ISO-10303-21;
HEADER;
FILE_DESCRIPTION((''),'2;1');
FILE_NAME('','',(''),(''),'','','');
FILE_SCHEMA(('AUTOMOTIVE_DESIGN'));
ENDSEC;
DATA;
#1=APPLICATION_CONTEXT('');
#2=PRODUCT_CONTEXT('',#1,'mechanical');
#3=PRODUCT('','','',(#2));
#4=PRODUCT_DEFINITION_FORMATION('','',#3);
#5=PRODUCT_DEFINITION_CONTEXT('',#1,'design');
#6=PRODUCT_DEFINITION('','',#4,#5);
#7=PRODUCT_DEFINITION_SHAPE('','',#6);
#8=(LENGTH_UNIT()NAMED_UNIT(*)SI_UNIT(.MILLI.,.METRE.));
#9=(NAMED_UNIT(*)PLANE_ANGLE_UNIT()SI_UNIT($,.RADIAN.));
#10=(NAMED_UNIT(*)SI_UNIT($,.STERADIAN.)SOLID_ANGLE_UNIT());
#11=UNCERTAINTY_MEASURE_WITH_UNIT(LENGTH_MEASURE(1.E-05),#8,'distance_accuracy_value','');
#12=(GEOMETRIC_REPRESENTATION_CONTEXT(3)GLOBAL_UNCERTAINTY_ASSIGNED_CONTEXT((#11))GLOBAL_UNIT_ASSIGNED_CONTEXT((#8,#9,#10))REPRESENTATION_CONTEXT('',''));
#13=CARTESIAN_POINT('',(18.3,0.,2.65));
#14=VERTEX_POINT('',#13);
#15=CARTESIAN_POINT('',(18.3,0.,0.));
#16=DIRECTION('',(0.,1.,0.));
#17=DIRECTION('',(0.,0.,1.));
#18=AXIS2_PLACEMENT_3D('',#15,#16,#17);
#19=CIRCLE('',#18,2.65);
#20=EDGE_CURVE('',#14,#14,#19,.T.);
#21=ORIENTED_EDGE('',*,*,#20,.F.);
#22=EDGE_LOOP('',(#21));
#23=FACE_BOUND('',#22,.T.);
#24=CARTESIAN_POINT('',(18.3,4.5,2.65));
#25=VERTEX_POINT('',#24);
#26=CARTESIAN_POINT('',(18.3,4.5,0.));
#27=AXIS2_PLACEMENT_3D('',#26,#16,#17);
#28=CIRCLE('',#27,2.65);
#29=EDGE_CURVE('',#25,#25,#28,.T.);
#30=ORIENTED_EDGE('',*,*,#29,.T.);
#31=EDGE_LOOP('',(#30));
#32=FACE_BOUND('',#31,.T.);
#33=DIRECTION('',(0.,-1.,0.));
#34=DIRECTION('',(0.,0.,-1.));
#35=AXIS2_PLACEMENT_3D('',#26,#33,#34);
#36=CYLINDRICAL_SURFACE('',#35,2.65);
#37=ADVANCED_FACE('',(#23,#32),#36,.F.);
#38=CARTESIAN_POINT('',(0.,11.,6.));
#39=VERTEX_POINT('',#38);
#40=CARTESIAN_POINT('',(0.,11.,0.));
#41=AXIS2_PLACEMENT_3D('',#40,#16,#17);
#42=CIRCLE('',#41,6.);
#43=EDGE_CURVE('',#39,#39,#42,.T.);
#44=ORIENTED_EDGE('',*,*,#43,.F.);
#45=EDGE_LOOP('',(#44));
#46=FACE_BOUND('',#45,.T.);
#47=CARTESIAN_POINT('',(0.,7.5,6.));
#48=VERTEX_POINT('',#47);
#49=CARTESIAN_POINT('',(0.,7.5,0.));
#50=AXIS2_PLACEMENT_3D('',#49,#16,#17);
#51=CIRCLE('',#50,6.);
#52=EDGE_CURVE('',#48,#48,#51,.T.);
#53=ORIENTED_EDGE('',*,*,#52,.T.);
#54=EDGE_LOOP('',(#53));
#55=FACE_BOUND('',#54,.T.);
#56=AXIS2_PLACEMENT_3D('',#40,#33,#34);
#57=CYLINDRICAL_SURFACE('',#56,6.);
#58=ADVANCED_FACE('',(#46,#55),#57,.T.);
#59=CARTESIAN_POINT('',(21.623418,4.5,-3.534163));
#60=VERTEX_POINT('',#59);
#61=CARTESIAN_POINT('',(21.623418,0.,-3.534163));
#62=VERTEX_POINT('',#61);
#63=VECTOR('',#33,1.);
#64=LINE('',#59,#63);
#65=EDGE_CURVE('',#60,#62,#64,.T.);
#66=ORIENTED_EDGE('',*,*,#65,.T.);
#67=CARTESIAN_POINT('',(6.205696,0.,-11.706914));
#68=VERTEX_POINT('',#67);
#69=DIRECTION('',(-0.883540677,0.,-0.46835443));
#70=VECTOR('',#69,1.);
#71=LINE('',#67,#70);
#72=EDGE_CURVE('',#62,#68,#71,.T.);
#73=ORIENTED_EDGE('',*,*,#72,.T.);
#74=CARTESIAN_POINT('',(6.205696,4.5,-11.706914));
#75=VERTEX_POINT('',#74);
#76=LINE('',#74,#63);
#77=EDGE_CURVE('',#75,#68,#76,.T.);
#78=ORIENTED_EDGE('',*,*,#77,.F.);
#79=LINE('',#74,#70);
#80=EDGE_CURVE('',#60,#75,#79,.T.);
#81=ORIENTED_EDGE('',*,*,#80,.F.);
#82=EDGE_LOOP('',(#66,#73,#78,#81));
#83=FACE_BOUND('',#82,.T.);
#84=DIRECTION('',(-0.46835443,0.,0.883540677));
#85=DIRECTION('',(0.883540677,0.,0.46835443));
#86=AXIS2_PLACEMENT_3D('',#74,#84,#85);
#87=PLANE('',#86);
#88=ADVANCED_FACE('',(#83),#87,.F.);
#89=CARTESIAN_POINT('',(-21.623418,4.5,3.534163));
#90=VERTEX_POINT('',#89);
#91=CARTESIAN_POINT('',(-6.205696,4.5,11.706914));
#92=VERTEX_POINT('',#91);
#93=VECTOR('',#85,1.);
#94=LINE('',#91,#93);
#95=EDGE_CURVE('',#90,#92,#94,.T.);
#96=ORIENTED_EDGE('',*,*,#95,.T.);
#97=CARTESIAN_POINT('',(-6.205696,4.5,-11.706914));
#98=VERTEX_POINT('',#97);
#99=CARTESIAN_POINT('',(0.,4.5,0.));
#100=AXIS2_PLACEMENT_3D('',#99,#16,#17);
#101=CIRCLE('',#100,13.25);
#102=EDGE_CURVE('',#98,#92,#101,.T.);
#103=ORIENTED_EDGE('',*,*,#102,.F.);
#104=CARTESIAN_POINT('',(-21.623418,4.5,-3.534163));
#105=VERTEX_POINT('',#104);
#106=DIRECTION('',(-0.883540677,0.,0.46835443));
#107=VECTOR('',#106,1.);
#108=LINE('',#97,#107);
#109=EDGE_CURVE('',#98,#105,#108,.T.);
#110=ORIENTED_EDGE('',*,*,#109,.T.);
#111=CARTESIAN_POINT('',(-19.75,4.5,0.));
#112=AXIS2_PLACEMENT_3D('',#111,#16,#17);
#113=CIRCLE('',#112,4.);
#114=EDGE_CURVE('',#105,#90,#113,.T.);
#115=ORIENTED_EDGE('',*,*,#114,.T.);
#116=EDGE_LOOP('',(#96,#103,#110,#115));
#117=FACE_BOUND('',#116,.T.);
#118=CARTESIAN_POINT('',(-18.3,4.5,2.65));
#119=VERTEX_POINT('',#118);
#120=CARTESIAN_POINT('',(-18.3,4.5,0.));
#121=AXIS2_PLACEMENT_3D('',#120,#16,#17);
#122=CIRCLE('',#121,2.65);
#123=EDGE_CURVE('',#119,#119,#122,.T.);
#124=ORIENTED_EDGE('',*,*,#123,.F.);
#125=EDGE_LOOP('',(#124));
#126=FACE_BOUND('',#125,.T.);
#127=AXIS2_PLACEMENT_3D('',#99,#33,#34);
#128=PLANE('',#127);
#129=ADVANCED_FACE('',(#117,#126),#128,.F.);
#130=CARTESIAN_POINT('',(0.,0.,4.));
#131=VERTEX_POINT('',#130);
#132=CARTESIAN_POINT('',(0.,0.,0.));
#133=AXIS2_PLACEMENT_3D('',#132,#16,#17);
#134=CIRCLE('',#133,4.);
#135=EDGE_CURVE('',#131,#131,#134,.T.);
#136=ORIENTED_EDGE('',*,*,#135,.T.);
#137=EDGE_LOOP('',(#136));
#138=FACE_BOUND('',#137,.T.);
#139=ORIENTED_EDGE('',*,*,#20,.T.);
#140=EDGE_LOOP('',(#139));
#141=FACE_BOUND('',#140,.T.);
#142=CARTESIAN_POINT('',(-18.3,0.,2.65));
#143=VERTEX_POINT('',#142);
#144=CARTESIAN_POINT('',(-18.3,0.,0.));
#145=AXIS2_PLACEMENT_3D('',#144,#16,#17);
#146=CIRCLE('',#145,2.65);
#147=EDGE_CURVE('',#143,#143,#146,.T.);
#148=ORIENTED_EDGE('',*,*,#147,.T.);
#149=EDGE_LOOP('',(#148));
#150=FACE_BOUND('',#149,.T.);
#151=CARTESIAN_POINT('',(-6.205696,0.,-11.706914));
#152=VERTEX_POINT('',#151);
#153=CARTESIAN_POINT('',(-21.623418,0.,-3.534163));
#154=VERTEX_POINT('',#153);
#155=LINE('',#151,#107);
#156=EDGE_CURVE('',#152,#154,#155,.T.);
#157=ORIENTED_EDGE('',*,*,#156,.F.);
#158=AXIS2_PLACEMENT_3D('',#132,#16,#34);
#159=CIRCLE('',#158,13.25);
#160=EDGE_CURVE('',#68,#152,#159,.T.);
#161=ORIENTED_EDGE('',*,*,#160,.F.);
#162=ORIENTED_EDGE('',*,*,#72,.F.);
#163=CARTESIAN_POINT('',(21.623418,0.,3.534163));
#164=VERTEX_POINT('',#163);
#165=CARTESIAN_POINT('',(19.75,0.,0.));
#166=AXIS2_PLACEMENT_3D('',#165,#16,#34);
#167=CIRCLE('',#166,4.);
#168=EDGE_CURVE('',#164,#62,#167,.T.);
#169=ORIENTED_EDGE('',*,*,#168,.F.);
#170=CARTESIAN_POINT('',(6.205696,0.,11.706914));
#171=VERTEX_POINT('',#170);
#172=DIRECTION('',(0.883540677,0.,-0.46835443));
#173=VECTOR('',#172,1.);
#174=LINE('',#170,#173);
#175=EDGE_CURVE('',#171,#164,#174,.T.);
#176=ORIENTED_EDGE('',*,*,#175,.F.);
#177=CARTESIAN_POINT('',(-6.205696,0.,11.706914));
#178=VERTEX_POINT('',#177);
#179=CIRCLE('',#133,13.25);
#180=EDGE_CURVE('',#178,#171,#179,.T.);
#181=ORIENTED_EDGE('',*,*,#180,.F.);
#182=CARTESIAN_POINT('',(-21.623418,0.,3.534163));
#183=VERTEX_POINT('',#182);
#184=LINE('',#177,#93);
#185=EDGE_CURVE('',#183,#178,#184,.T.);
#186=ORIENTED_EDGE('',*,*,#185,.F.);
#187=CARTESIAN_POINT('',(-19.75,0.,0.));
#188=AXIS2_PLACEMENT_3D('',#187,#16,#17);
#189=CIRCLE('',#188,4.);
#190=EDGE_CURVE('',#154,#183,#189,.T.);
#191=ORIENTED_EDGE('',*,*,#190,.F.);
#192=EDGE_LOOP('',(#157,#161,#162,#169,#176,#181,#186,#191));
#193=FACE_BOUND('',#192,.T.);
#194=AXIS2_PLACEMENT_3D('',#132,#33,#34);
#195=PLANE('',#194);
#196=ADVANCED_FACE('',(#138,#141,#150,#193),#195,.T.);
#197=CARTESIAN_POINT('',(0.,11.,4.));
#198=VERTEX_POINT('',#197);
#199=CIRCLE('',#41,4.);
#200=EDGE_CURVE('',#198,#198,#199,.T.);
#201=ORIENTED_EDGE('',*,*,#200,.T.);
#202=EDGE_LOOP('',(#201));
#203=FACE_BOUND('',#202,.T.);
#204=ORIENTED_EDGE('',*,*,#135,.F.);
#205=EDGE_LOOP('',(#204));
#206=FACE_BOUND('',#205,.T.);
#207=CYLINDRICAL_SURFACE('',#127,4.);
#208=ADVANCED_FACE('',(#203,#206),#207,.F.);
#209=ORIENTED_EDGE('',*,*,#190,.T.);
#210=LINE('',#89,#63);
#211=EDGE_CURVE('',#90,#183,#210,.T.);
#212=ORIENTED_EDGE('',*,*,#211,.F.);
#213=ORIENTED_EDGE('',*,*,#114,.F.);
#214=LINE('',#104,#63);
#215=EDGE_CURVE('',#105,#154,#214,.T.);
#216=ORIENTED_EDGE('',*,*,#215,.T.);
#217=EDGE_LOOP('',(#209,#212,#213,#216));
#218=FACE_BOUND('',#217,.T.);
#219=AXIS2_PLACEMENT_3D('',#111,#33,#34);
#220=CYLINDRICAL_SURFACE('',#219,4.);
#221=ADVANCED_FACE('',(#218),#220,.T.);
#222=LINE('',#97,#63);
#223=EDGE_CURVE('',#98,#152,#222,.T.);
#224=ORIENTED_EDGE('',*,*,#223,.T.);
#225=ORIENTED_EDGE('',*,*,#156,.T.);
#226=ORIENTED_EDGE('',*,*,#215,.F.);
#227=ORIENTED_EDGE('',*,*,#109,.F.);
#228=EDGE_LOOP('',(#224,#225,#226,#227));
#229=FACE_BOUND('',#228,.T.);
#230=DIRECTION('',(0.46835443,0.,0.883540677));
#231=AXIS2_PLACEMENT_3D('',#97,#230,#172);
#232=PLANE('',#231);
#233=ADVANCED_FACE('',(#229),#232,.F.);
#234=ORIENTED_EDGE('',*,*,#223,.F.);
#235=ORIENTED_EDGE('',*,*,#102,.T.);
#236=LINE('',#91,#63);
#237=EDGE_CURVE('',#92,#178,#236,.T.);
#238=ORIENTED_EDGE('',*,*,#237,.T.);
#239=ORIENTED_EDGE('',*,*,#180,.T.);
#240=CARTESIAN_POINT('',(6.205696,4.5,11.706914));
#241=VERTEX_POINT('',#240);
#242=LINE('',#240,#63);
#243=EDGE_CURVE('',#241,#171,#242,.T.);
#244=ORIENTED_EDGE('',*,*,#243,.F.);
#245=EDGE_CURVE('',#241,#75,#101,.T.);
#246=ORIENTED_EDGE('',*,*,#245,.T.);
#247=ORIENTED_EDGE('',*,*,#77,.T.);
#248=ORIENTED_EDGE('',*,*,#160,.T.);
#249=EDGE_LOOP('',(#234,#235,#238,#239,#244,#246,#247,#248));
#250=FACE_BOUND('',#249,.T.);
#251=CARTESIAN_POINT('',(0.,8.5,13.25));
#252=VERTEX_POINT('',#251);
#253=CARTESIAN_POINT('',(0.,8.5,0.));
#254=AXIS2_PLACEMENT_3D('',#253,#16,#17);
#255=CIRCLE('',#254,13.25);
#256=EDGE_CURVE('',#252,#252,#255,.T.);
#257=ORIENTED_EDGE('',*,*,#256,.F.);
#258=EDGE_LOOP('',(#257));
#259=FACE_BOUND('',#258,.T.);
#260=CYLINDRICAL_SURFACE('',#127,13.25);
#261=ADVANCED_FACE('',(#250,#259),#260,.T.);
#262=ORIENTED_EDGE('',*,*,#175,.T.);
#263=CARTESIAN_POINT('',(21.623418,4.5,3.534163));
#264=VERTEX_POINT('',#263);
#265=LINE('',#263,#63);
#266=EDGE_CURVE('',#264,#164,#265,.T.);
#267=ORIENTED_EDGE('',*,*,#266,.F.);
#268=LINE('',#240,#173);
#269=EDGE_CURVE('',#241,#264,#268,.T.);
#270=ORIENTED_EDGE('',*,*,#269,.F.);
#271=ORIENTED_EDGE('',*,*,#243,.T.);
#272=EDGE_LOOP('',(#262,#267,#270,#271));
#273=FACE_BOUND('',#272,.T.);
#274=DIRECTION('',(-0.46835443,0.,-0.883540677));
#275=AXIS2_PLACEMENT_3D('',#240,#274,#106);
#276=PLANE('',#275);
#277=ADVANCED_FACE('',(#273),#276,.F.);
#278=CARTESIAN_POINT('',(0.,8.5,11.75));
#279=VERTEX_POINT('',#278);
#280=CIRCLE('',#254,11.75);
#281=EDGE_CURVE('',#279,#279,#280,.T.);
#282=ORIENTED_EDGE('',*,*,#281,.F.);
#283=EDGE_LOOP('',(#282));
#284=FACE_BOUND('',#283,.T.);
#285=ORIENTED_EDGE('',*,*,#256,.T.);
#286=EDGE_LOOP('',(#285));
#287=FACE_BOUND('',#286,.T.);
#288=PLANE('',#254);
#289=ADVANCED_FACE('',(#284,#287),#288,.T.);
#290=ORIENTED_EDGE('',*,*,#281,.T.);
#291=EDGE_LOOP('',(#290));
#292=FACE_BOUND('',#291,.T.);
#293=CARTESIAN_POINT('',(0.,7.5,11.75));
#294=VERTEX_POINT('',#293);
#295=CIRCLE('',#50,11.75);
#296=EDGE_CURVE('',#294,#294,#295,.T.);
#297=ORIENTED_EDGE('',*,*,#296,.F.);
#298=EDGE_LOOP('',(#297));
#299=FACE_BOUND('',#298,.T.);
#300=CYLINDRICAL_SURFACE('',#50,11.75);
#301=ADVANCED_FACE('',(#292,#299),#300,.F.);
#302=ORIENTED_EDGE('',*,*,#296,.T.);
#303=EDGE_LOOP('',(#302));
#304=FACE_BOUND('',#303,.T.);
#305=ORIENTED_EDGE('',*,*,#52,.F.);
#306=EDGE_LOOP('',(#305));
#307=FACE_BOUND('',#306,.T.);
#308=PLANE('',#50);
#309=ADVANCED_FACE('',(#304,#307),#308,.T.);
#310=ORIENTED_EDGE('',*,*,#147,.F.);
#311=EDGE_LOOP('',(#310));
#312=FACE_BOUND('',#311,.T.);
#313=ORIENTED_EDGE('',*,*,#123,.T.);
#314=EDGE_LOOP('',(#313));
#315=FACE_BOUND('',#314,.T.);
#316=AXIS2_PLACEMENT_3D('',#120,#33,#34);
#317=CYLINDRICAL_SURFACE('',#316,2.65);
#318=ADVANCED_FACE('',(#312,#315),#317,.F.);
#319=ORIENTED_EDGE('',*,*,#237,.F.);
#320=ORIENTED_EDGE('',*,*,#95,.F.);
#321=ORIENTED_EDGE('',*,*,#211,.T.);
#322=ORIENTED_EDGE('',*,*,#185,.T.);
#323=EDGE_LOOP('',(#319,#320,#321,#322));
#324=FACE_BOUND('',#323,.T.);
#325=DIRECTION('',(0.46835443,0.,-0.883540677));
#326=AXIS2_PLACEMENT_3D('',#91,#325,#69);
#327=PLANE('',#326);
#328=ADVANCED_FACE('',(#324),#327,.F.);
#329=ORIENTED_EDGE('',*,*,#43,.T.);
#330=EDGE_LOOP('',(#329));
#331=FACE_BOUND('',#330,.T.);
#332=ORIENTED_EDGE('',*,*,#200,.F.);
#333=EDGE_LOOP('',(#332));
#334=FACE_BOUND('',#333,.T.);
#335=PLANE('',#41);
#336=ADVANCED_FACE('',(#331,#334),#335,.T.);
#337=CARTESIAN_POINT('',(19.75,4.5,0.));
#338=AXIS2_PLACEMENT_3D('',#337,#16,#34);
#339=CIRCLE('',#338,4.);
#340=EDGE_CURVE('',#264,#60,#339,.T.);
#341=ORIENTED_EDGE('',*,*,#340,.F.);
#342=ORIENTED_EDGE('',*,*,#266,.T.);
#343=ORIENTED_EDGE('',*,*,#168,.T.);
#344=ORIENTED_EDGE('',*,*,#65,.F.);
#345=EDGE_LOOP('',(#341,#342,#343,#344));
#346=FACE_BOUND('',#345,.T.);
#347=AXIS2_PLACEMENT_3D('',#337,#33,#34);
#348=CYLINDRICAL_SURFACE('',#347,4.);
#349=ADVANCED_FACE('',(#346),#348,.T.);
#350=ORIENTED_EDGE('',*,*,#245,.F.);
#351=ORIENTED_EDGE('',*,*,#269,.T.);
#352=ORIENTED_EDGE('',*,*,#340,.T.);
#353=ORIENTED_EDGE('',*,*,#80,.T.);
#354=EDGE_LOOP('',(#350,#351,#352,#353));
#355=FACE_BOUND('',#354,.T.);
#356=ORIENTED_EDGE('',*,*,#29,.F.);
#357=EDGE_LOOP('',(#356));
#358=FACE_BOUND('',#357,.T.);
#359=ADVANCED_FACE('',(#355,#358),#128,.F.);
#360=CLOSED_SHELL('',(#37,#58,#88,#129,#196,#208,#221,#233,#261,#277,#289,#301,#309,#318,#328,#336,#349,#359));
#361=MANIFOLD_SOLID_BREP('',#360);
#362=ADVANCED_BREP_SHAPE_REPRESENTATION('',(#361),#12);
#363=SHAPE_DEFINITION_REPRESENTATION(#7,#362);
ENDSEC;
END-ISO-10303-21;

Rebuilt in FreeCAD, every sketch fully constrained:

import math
import FreeCAD as App
import Part
import Sketcher

V = App.Vector

doc = App.newDocument("Part")
body = doc.addObject("PartDesign::Body", "Body")

# Sketch on XZ plane
sketch1 = body.newObject("Sketcher::SketchObject", "Sketch")
sketch1.AttachmentSupport = (doc.getObject("XZ_Plane"), [""])
sketch1.MapMode = "FlatFace"
sketch1.addGeometry(Part.LineSegment(V(21.6, -3.5, 0), V(6.2, -11.7, 0)), False)
sketch1.addGeometry(Part.ArcOfCircle(Part.Circle(V(0, 0, 0), V(0, 0, 1), 13.2), math.radians(-118), math.radians(-62)), False)
sketch1.addGeometry(Part.LineSegment(V(-6.2, -11.7, 0), V(-21.6, -3.5, 0)), False)
sketch1.addGeometry(Part.ArcOfCircle(Part.Circle(V(-19.8, 0, 0), V(0, 0, 1), 4), math.radians(118), math.radians(242)), False)
sketch1.addGeometry(Part.LineSegment(V(-21.6, 3.5, 0), V(-6.2, 11.7, 0)), False)
sketch1.addGeometry(Part.ArcOfCircle(Part.Circle(V(0, 0, 0), V(0, 0, 1), 13.2), math.radians(62), math.radians(118)), False)
sketch1.addGeometry(Part.LineSegment(V(6.2, 11.7, 0), V(21.6, 3.5, 0)), False)
sketch1.addGeometry(Part.ArcOfCircle(Part.Circle(V(19.8, 0, 0), V(0, 0, 1), 4), math.radians(-62), math.radians(62)), False)
sketch1.addGeometry(Part.Circle(V(18.3, 0, 0), V(0, 0, 1), 2.6), False)
sketch1.addGeometry(Part.Circle(V(0, 0, 0), V(0, 0, 1), 4), False)
sketch1.addGeometry(Part.Circle(V(-18.3, 0, 0), V(0, 0, 1), 2.6), False)
sketch1.addConstraint(Sketcher.Constraint("Tangent", 0, 2, 1, 2))
sketch1.addConstraint(Sketcher.Constraint("Tangent", 1, 1, 2, 1))
sketch1.addConstraint(Sketcher.Constraint("Tangent", 2, 2, 3, 2))
sketch1.addConstraint(Sketcher.Constraint("Tangent", 3, 1, 4, 1))
sketch1.addConstraint(Sketcher.Constraint("Tangent", 4, 2, 5, 2))
sketch1.addConstraint(Sketcher.Constraint("Tangent", 5, 1, 6, 1))
sketch1.addConstraint(Sketcher.Constraint("Tangent", 6, 2, 7, 2))
sketch1.addConstraint(Sketcher.Constraint("Tangent", 7, 1, 0, 1))
sketch1.addConstraint(Sketcher.Constraint("Coincident", 1, 3, -1, 1))
sketch1.addConstraint(Sketcher.Constraint("Coincident", 5, 3, -1, 1))
sketch1.addConstraint(Sketcher.Constraint("Coincident", 9, 3, -1, 1))
sketch1.addConstraint(Sketcher.Constraint("Equal", 1, 5))
sketch1.addConstraint(Sketcher.Constraint("Equal", 3, 7))
sketch1.addConstraint(Sketcher.Constraint("Equal", 7, 9))
sketch1.addConstraint(Sketcher.Constraint("Equal", 8, 10))
sketch1.addConstraint(Sketcher.Constraint("Symmetric", 3, 3, 7, 3, -1, 1))
sketch1.addConstraint(Sketcher.Constraint("Symmetric", 8, 3, 10, 3, -1, 1))
sketch1.addConstraint(Sketcher.Constraint("PointOnObject", 3, 3, -1))
sketch1.addConstraint(Sketcher.Constraint("PointOnObject", 8, 3, -1))
sketch1.addConstraint(Sketcher.Constraint("Diameter", 9, 8.0))
sketch1.addConstraint(Sketcher.Constraint("Diameter", 8, 5.3))
sketch1.addConstraint(Sketcher.Constraint("Radius", 1, 13.25))
sketch1.addConstraint(Sketcher.Constraint("DistanceX", -1, 1, 8, 3, 18.3))
sketch1.addConstraint(Sketcher.Constraint("DistanceX", 3, 3, 7, 3, 39.5))
pad1 = body.newObject("PartDesign::Pad", "Pad")
pad1.Profile = sketch1
pad1.Length = 4.5
pad1.Reversed = True

# Sketch on XZ plane
sketch2 = body.newObject("Sketcher::SketchObject", "Sketch001")
sketch2.AttachmentSupport = (doc.getObject("XZ_Plane"), [""])
sketch2.MapMode = "FlatFace"
sketch2.AttachmentOffset = App.Placement(V(0, 0, -4.5), App.Rotation())
sketch2.addGeometry(Part.Circle(V(0, 0, 0), V(0, 0, 1), 13.2), False)
sketch2.addGeometry(Part.Circle(V(0, 0, 0), V(0, 0, 1), 4), False)
sketch2.addConstraint(Sketcher.Constraint("Coincident", 0, 3, -1, 1))
sketch2.addConstraint(Sketcher.Constraint("Coincident", 1, 3, -1, 1))
sketch2.addConstraint(Sketcher.Constraint("Diameter", 1, 8.0))
sketch2.addConstraint(Sketcher.Constraint("Diameter", 0, 26.5))
pad2 = body.newObject("PartDesign::Pad", "Pad001")
pad2.Profile = sketch2
pad2.Length = 4
pad2.Reversed = True

# Sketch on XZ plane
sketch3 = body.newObject("Sketcher::SketchObject", "Sketch002")
sketch3.AttachmentSupport = (doc.getObject("XZ_Plane"), [""])
sketch3.MapMode = "FlatFace"
sketch3.AttachmentOffset = App.Placement(V(0, 0, -8.5), App.Rotation())
sketch3.addGeometry(Part.Circle(V(0, 0, 0), V(0, 0, 1), 6), False)
sketch3.addGeometry(Part.Circle(V(0, 0, 0), V(0, 0, 1), 4), False)
sketch3.addConstraint(Sketcher.Constraint("Coincident", 0, 3, -1, 1))
sketch3.addConstraint(Sketcher.Constraint("Coincident", 1, 3, -1, 1))
sketch3.addConstraint(Sketcher.Constraint("Diameter", 0, 12.0))
sketch3.addConstraint(Sketcher.Constraint("Diameter", 1, 8.0))
pad3 = body.newObject("PartDesign::Pad", "Pad002")
pad3.Profile = sketch3
pad3.Length = 2.5
pad3.Reversed = True

# Sketch on XZ plane
sketch4 = body.newObject("Sketcher::SketchObject", "Sketch003")
sketch4.AttachmentSupport = (doc.getObject("XZ_Plane"), [""])
sketch4.MapMode = "FlatFace"
sketch4.AttachmentOffset = App.Placement(V(0, 0, -8.5), App.Rotation())
sketch4.addGeometry(Part.Circle(V(0, 0, 0), V(0, 0, 1), 12), False)
sketch4.addGeometry(Part.Circle(V(0, 0, 0), V(0, 0, 1), 6), False)
sketch4.addConstraint(Sketcher.Constraint("Coincident", 0, 3, -1, 1))
sketch4.addConstraint(Sketcher.Constraint("Coincident", 1, 3, -1, 1))
sketch4.addConstraint(Sketcher.Constraint("Diameter", 1, 12.0))
sketch4.addConstraint(Sketcher.Constraint("Diameter", 0, 23.5))
pocket1 = body.newObject("PartDesign::Pocket", "Pocket")
pocket1.Profile = sketch4
pocket1.Length = 1
pocket1.Reversed = True

doc.recompute()
